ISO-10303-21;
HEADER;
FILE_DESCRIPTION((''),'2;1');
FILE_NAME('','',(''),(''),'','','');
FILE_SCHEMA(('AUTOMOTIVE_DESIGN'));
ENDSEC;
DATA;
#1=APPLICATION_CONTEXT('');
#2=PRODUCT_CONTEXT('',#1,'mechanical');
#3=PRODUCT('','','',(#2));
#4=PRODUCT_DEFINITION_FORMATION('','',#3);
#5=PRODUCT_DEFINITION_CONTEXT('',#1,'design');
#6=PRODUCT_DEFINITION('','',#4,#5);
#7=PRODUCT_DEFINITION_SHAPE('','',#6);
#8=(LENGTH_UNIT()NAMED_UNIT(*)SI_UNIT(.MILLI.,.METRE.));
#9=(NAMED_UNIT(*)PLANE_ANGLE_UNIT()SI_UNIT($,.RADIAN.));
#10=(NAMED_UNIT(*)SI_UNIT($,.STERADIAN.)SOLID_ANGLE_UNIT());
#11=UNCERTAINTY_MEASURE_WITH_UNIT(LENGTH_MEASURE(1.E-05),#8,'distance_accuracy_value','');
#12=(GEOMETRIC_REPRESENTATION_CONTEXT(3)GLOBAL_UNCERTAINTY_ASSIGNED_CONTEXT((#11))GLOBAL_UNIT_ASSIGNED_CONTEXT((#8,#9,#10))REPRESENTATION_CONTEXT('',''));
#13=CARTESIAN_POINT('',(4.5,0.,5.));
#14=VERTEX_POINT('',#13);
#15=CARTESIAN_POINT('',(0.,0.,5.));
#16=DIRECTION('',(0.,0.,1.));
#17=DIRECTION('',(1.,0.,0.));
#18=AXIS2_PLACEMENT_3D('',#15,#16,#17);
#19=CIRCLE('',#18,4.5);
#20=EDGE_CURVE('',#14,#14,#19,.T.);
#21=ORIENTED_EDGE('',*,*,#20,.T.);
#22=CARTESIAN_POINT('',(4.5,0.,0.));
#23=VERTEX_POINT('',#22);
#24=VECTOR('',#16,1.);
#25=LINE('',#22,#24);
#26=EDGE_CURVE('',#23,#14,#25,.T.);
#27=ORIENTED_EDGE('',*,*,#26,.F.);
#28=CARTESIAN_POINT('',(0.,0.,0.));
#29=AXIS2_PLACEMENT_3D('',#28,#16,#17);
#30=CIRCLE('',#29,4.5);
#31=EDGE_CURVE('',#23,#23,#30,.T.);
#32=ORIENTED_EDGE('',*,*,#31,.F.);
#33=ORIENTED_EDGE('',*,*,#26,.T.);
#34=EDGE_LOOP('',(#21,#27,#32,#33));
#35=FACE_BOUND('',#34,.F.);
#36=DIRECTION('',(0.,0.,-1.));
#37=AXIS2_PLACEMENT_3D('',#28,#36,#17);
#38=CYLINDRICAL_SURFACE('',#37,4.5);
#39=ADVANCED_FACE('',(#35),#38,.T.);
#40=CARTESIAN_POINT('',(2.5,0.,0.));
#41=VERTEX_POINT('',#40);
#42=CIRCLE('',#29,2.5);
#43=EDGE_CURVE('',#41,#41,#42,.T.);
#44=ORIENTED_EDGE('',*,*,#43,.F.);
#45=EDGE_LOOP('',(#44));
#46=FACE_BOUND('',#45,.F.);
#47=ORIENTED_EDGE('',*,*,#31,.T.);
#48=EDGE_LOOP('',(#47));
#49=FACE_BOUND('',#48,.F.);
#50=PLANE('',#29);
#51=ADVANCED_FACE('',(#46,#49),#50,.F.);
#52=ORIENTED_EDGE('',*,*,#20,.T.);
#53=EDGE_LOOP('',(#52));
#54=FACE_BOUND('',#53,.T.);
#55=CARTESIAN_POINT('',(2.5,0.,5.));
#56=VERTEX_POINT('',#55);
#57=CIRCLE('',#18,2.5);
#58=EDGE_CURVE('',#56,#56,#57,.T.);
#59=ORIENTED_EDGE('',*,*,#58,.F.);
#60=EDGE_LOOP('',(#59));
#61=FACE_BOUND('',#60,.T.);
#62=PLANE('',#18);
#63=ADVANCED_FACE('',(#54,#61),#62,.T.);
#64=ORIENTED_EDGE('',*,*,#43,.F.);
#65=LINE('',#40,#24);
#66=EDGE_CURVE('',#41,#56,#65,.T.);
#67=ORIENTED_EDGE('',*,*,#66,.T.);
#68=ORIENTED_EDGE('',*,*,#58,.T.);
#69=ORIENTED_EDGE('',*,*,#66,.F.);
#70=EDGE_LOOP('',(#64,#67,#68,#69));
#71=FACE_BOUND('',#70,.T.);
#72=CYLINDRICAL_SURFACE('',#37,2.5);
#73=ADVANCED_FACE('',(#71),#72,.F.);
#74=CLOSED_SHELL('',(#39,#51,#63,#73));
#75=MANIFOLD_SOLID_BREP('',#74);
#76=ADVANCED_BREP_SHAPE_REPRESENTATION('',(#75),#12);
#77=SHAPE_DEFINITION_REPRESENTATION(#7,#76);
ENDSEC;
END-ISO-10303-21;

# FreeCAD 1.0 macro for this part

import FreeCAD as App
import Part
import Sketcher
from FreeCAD import Vector
Q = App.Units.Quantity

doc = App.newDocument("Part")
params = doc.addObject("Spreadsheet::Sheet", "Params")
for row, (alias, value) in enumerate([
    ("sketch1_diameter", "5 mm"),
    ("sketch1_diameter2", "9 mm"),
    ("pad1_length", "5 mm"),
], start=1):
    params.set(f"A{row}", alias)
    params.set(f"B{row}", "=" + value)
    params.setAlias(f"B{row}", alias)

body = doc.addObject("PartDesign::Body", "Body")

# Sketch on XY plane
sketch1 = body.newObject("Sketcher::SketchObject", "Sketch")
sketch1.AttachmentSupport = (doc.getObject("XY_Plane"), [""])
sketch1.MapMode = "FlatFace"
sketch1.addGeometry([
    Part.Circle(Vector(0, 0, 0), Vector(0, 0, 1), 4.5),
    Part.Circle(Vector(0, 0, 0), Vector(0, 0, 1), 2.5),
], False)
sketch1.addConstraint([
    Sketcher.Constraint("Coincident", 0, 3, -1, 1),
    Sketcher.Constraint("Coincident", 1, 3, -1, 1),
    Sketcher.Constraint("Diameter", 1, Q("5 mm")),
    Sketcher.Constraint("Diameter", 0, Q("9 mm")),
])
sketch1.setExpression("Constraints[2]", "Params.sketch1_diameter")
sketch1.setExpression("Constraints[3]", "Params.sketch1_diameter2")
pad1 = body.newObject("PartDesign::Pad", "Pad")
pad1.Profile = sketch1
pad1.setExpression("Length", "Params.pad1_length")

doc.recompute()
